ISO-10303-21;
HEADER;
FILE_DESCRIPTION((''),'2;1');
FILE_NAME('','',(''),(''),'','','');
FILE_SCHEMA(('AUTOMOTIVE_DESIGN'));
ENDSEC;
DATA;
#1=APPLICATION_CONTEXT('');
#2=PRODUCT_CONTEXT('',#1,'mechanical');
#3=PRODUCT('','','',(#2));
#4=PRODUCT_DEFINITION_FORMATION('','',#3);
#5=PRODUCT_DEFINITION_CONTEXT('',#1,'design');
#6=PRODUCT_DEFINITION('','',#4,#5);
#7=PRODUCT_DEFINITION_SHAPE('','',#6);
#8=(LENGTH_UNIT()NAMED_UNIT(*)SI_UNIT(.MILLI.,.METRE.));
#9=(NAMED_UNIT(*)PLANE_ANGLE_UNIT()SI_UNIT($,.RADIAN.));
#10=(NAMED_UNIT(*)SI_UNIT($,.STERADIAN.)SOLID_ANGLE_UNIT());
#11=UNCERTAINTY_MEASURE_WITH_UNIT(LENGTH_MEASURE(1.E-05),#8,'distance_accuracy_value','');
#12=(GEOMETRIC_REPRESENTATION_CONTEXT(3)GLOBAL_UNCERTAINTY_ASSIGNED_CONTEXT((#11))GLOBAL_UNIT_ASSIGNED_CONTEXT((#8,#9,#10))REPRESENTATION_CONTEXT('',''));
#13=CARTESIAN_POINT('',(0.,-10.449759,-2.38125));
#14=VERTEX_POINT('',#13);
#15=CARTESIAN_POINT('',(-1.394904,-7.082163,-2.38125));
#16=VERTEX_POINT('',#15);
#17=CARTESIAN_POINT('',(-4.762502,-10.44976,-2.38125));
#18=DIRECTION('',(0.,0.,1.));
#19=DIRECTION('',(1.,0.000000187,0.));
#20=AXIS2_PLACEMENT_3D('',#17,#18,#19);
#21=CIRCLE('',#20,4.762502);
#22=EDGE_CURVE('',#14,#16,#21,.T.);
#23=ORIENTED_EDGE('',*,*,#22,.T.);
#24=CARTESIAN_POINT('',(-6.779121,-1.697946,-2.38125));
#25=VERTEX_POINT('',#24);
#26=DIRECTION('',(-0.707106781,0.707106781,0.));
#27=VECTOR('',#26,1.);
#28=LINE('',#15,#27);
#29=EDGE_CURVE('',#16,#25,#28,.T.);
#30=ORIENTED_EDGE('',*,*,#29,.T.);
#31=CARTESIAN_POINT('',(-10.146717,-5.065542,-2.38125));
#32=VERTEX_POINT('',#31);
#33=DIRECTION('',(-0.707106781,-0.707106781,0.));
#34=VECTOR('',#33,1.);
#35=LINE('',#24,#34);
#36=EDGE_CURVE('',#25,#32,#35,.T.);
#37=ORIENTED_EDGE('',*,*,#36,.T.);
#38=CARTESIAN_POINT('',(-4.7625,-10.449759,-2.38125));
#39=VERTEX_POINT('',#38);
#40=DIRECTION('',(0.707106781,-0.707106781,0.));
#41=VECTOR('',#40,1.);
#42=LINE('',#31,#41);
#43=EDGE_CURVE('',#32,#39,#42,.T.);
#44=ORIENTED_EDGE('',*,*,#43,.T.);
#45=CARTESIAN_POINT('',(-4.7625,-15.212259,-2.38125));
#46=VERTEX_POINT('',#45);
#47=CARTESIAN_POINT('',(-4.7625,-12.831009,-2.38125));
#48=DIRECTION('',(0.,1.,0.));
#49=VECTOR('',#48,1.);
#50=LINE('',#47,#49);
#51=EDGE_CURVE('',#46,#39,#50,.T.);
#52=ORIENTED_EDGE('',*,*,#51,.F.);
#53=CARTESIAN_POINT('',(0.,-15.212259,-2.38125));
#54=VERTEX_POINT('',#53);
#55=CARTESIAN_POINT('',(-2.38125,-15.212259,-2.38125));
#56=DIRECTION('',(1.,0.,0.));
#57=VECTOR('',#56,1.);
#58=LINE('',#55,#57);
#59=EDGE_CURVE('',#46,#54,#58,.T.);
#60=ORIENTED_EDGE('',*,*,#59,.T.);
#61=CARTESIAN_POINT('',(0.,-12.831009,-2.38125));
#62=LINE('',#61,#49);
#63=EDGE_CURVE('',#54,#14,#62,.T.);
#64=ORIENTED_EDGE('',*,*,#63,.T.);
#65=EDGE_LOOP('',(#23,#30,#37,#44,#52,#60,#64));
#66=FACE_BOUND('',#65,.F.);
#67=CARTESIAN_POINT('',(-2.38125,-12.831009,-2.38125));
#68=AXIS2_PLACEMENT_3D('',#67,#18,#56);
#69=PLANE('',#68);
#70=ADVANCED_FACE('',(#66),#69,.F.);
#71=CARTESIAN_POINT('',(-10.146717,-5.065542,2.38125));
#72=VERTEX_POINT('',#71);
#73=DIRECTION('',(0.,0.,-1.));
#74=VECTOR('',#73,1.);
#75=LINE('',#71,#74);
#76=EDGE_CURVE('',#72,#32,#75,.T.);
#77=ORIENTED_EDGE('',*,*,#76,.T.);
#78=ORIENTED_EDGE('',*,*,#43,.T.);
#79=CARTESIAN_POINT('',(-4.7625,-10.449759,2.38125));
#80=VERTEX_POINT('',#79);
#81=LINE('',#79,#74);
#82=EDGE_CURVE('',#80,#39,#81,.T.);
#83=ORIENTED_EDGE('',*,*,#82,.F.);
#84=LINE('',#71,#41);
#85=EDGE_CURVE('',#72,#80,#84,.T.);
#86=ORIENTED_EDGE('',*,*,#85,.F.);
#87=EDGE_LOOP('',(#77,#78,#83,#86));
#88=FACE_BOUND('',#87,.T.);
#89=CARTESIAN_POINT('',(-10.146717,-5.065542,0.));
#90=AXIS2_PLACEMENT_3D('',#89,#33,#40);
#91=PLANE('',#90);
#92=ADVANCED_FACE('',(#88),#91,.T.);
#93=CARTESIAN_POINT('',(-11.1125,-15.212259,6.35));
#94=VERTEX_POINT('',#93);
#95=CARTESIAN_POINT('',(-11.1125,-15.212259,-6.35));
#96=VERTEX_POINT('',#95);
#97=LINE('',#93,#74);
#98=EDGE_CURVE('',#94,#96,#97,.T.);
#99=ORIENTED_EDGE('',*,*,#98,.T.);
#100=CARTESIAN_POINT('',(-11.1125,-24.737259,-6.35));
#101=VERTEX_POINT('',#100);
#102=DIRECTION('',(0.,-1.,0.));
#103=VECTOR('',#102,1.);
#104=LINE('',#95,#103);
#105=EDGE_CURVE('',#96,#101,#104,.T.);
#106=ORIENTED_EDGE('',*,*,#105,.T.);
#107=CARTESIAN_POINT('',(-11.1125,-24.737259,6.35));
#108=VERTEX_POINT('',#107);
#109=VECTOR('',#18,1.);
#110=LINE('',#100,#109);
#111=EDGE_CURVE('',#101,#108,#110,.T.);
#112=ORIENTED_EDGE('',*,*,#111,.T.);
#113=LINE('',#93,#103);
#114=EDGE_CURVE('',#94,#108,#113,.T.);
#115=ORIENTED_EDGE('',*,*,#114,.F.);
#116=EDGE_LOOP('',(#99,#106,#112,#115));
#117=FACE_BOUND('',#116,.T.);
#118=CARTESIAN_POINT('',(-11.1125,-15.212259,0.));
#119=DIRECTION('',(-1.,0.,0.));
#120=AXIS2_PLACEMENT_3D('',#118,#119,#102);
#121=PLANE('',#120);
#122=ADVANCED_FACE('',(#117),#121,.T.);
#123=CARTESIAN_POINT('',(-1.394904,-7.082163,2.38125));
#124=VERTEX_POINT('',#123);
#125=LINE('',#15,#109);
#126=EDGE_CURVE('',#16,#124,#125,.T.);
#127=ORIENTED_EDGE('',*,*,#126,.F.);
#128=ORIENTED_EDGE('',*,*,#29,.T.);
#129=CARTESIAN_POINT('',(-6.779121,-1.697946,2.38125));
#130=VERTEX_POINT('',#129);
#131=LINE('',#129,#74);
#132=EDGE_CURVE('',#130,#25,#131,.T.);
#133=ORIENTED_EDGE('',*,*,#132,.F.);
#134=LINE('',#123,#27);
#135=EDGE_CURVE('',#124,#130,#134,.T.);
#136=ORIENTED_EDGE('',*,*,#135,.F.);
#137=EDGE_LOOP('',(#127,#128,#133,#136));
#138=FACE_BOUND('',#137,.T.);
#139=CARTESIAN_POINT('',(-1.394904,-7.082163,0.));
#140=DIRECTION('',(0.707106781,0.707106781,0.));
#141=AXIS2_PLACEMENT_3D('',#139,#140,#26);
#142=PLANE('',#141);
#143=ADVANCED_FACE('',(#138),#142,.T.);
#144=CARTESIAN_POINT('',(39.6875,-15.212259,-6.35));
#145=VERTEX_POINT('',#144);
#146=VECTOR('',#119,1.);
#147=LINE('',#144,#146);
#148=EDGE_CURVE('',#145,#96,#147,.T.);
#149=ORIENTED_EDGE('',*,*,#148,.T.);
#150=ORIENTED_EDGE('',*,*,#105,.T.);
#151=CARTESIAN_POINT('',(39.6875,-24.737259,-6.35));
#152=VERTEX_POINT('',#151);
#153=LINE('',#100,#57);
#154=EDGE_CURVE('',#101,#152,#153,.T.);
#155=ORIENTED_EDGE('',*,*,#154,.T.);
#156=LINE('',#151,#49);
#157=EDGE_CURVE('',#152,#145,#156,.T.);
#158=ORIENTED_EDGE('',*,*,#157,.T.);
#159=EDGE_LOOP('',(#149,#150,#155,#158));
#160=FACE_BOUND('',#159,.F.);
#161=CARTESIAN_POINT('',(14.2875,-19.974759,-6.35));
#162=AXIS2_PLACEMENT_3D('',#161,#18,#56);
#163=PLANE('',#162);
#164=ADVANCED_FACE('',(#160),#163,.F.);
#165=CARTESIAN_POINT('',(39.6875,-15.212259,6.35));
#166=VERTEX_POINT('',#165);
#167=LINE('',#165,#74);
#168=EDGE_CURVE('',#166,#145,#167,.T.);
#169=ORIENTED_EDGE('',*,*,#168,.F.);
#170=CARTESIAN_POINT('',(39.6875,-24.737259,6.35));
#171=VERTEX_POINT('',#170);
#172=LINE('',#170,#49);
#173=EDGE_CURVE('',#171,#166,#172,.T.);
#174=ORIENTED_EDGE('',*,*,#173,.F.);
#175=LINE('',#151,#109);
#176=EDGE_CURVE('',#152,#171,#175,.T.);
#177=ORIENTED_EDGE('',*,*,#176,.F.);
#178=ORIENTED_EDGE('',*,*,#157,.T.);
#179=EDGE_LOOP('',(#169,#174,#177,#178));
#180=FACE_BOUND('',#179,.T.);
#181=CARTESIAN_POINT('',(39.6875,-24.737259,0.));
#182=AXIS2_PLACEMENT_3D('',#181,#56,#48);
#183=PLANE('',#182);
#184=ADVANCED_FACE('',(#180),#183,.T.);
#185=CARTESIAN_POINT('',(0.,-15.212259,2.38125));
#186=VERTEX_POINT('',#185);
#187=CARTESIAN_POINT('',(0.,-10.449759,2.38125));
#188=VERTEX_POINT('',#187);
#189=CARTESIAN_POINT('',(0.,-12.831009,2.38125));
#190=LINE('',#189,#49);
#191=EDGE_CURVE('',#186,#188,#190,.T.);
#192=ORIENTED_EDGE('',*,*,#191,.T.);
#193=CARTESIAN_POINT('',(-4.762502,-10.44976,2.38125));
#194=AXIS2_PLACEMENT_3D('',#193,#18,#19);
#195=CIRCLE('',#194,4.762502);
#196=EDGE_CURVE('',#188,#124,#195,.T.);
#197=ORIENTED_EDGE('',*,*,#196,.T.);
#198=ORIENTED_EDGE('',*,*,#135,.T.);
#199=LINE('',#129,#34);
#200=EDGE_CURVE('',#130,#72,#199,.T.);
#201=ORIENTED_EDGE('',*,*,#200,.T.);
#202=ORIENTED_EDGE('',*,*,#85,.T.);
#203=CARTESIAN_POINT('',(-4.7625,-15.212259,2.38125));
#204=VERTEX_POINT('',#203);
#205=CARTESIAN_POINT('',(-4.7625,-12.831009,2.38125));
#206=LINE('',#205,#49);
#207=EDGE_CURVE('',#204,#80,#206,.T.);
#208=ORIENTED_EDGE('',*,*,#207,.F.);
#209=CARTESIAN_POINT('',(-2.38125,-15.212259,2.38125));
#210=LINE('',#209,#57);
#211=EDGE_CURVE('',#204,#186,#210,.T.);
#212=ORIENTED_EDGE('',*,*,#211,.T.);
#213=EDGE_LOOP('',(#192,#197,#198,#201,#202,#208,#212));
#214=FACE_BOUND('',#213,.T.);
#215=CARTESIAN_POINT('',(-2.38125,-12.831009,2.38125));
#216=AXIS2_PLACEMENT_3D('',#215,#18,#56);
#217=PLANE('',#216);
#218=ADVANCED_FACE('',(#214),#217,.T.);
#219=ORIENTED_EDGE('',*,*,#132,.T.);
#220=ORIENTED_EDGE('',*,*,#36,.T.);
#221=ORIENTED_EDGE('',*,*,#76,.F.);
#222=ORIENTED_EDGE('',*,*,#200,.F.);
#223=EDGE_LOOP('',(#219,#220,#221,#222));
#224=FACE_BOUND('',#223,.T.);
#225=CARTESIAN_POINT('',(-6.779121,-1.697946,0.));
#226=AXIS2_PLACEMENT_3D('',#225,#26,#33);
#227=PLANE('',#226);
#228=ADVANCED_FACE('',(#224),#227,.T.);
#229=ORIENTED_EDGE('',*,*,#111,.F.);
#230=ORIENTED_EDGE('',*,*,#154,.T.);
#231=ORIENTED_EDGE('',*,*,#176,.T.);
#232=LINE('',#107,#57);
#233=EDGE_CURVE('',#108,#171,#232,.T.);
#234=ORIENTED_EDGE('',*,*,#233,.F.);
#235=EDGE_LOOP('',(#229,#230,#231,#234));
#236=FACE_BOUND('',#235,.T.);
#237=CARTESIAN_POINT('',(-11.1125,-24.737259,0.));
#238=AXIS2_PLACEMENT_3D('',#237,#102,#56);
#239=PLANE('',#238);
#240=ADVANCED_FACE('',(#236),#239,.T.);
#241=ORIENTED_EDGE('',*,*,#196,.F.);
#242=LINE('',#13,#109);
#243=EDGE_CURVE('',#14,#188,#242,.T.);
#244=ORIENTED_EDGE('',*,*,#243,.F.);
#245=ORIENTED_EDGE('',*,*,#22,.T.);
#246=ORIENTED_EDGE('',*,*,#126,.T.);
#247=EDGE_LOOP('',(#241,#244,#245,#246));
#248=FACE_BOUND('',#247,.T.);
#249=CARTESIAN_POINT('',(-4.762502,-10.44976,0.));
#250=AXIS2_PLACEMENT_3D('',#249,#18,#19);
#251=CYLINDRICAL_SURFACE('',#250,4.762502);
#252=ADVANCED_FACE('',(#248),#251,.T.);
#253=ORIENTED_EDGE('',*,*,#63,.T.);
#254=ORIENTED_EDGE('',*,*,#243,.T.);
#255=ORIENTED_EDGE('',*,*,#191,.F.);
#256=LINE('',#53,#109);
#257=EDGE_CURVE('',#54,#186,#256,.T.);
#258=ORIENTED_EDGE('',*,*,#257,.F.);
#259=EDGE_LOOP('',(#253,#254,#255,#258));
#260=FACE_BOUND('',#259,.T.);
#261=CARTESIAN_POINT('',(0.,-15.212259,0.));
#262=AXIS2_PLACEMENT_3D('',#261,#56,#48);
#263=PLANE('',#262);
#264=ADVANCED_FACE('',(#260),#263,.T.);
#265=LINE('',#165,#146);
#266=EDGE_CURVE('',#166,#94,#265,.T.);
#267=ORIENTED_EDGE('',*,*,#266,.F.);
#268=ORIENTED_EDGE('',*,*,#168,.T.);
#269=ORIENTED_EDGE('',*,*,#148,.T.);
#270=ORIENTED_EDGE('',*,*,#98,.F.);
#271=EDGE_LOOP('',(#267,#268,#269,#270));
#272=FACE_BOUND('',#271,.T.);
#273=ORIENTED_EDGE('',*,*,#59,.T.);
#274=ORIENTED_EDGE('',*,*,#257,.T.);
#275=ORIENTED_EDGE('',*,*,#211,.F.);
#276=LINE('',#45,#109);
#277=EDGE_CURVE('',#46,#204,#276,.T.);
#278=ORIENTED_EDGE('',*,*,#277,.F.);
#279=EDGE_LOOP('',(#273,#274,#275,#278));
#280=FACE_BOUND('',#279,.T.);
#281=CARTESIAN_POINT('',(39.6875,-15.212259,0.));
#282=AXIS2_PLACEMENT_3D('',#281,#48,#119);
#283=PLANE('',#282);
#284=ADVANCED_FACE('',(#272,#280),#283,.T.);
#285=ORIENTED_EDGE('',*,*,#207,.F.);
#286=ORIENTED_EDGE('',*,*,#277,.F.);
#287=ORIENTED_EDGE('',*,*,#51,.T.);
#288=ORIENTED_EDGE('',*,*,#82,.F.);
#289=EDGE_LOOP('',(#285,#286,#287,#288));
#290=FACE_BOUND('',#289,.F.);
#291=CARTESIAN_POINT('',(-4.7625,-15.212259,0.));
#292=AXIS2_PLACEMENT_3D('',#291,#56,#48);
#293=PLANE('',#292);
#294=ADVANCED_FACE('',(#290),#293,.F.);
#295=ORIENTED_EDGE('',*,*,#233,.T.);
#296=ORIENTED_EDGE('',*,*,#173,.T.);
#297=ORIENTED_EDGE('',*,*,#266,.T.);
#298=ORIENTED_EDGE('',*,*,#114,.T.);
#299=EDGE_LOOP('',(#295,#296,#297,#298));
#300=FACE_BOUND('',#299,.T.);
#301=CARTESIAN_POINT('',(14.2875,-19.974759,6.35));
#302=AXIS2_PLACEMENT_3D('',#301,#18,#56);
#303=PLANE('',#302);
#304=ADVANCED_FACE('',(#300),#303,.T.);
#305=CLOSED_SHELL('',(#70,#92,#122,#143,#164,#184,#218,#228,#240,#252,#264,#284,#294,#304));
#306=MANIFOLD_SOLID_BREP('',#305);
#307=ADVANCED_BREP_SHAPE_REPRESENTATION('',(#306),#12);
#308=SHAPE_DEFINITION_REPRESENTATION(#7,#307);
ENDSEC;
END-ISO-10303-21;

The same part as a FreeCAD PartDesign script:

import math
import FreeCAD as App
import Part
import Sketcher

V = App.Vector
Q = App.Units.Quantity

doc = App.newDocument("Part")
body = doc.addObject("PartDesign::Body", "Body")

# Sketch on XY plane
sketch1 = body.newObject("Sketcher::SketchObject", "Sketch")
sketch1.AttachmentSupport = (doc.getObject("XY_Plane"), [""])
sketch1.MapMode = "FlatFace"
sketch1.addGeometry(Part.LineSegment(V(-11, -15, 0), V(-11, -25, 0)), False)
sketch1.addGeometry(Part.LineSegment(V(-11, -25, 0), V(40, -25, 0)), False)
sketch1.addGeometry(Part.LineSegment(V(40, -25, 0), V(40, -15, 0)), False)
sketch1.addGeometry(Part.LineSegment(V(40, -15, 0), V(-11, -15, 0)), False)
sketch1.addConstraint(Sketcher.Constraint("Coincident", 0, 2, 1, 1))
sketch1.addConstraint(Sketcher.Constraint("Coincident", 1, 2, 2, 1))
sketch1.addConstraint(Sketcher.Constraint("Coincident", 2, 2, 3, 1))
sketch1.addConstraint(Sketcher.Constraint("Coincident", 3, 2, 0, 1))
sketch1.addConstraint(Sketcher.Constraint("Vertical", 0))
sketch1.addConstraint(Sketcher.Constraint("Horizontal", 1))
sketch1.addConstraint(Sketcher.Constraint("Vertical", 2))
sketch1.addConstraint(Sketcher.Constraint("Horizontal", 3))
sketch1.addConstraint(Sketcher.Constraint("DistanceX", 1, 1, 1, 2, Q("2 in")))
sketch1.addConstraint(Sketcher.Constraint("DistanceY", 0, 2, 0, 1, Q("0.375 in")))
sketch1.addConstraint(Sketcher.Constraint("DistanceX", 0, 2, -1, 1, Q("0.4375 in")))
sketch1.addConstraint(Sketcher.Constraint("DistanceY", 0, 2, -1, 1, 24.737259))
pad1 = body.newObject("PartDesign::Pad", "Pad")
pad1.Profile = sketch1
pad1.Length = Q("0.5 in")
pad1.Midplane = True

# Sketch on XY plane
sketch2 = body.newObject("Sketcher::SketchObject", "Sketch001")
sketch2.AttachmentSupport = (doc.getObject("XY_Plane"), [""])
sketch2.MapMode = "FlatFace"
sketch2.addGeometry(Part.LineSegment(V(-4.8, -10.4, 0), V(-4.8, -15.2, 0)), False)
sketch2.addGeometry(Part.LineSegment(V(-4.8, -15.2, 0), V(0, -15.2, 0)), False)
sketch2.addGeometry(Part.LineSegment(V(0, -15.2, 0), V(0, -10.4, 0)), False)
sketch2.addGeometry(Part.ArcOfCircle(Part.Circle(V(-4.8, -10.4, 0), V(0, 0, 1), 4.8), math.radians(0), math.radians(45)), False)
sketch2.addGeometry(Part.LineSegment(V(-1.4, -7.1, 0), V(-6.8, -1.7, 0)), False)
sketch2.addGeometry(Part.LineSegment(V(-6.8, -1.7, 0), V(-10.1, -5.1, 0)), False)
sketch2.addGeometry(Part.LineSegment(V(-10.1, -5.1, 0), V(-4.8, -10.4, 0)), False)
sketch2.addConstraint(Sketcher.Constraint("Coincident", 0, 2, 1, 1))
sketch2.addConstraint(Sketcher.Constraint("Coincident", 1, 2, 2, 1))
sketch2.addConstraint(Sketcher.Constraint("Tangent", 2, 2, 3, 1))
sketch2.addConstraint(Sketcher.Constraint("Tangent", 3, 2, 4, 1))
sketch2.addConstraint(Sketcher.Constraint("Coincident", 4, 2, 5, 1))
sketch2.addConstraint(Sketcher.Constraint("Coincident", 5, 2, 6, 1))
sketch2.addConstraint(Sketcher.Constraint("Coincident", 6, 2, 0, 1))
sketch2.addConstraint(Sketcher.Constraint("Vertical", 0))
sketch2.addConstraint(Sketcher.Constraint("Horizontal", 1))
sketch2.addConstraint(Sketcher.Constraint("Vertical", 2))
sketch2.addConstraint(Sketcher.Constraint("Coincident", 6, 2, 3, 3))
sketch2.addConstraint(Sketcher.Constraint("PointOnObject", 1, 2, -2))
sketch2.addConstraint(Sketcher.Constraint("Perpendicular", 4, 5))
sketch2.addConstraint(Sketcher.Constraint("Perpendicular", 5, 6))
sketch2.addConstraint(Sketcher.Constraint("Equal", 1, 0))
sketch2.addConstraint(Sketcher.Constraint("Angle", 4, Q("135 deg")))
sketch2.addConstraint(Sketcher.Constraint("Radius", 3, Q("0.1875001 in")))
sketch2.addConstraint(Sketcher.Constraint("DistanceY", 3, 3, -1, 1, 10.44976))
sketch2.addConstraint(Sketcher.Constraint("DistanceX", 4, 2, -1, 1, 6.779121))
pad2 = body.newObject("PartDesign::Pad", "Pad001")
pad2.Profile = sketch2
pad2.Length = Q("0.1875 in")
pad2.Midplane = True

doc.recompute()
